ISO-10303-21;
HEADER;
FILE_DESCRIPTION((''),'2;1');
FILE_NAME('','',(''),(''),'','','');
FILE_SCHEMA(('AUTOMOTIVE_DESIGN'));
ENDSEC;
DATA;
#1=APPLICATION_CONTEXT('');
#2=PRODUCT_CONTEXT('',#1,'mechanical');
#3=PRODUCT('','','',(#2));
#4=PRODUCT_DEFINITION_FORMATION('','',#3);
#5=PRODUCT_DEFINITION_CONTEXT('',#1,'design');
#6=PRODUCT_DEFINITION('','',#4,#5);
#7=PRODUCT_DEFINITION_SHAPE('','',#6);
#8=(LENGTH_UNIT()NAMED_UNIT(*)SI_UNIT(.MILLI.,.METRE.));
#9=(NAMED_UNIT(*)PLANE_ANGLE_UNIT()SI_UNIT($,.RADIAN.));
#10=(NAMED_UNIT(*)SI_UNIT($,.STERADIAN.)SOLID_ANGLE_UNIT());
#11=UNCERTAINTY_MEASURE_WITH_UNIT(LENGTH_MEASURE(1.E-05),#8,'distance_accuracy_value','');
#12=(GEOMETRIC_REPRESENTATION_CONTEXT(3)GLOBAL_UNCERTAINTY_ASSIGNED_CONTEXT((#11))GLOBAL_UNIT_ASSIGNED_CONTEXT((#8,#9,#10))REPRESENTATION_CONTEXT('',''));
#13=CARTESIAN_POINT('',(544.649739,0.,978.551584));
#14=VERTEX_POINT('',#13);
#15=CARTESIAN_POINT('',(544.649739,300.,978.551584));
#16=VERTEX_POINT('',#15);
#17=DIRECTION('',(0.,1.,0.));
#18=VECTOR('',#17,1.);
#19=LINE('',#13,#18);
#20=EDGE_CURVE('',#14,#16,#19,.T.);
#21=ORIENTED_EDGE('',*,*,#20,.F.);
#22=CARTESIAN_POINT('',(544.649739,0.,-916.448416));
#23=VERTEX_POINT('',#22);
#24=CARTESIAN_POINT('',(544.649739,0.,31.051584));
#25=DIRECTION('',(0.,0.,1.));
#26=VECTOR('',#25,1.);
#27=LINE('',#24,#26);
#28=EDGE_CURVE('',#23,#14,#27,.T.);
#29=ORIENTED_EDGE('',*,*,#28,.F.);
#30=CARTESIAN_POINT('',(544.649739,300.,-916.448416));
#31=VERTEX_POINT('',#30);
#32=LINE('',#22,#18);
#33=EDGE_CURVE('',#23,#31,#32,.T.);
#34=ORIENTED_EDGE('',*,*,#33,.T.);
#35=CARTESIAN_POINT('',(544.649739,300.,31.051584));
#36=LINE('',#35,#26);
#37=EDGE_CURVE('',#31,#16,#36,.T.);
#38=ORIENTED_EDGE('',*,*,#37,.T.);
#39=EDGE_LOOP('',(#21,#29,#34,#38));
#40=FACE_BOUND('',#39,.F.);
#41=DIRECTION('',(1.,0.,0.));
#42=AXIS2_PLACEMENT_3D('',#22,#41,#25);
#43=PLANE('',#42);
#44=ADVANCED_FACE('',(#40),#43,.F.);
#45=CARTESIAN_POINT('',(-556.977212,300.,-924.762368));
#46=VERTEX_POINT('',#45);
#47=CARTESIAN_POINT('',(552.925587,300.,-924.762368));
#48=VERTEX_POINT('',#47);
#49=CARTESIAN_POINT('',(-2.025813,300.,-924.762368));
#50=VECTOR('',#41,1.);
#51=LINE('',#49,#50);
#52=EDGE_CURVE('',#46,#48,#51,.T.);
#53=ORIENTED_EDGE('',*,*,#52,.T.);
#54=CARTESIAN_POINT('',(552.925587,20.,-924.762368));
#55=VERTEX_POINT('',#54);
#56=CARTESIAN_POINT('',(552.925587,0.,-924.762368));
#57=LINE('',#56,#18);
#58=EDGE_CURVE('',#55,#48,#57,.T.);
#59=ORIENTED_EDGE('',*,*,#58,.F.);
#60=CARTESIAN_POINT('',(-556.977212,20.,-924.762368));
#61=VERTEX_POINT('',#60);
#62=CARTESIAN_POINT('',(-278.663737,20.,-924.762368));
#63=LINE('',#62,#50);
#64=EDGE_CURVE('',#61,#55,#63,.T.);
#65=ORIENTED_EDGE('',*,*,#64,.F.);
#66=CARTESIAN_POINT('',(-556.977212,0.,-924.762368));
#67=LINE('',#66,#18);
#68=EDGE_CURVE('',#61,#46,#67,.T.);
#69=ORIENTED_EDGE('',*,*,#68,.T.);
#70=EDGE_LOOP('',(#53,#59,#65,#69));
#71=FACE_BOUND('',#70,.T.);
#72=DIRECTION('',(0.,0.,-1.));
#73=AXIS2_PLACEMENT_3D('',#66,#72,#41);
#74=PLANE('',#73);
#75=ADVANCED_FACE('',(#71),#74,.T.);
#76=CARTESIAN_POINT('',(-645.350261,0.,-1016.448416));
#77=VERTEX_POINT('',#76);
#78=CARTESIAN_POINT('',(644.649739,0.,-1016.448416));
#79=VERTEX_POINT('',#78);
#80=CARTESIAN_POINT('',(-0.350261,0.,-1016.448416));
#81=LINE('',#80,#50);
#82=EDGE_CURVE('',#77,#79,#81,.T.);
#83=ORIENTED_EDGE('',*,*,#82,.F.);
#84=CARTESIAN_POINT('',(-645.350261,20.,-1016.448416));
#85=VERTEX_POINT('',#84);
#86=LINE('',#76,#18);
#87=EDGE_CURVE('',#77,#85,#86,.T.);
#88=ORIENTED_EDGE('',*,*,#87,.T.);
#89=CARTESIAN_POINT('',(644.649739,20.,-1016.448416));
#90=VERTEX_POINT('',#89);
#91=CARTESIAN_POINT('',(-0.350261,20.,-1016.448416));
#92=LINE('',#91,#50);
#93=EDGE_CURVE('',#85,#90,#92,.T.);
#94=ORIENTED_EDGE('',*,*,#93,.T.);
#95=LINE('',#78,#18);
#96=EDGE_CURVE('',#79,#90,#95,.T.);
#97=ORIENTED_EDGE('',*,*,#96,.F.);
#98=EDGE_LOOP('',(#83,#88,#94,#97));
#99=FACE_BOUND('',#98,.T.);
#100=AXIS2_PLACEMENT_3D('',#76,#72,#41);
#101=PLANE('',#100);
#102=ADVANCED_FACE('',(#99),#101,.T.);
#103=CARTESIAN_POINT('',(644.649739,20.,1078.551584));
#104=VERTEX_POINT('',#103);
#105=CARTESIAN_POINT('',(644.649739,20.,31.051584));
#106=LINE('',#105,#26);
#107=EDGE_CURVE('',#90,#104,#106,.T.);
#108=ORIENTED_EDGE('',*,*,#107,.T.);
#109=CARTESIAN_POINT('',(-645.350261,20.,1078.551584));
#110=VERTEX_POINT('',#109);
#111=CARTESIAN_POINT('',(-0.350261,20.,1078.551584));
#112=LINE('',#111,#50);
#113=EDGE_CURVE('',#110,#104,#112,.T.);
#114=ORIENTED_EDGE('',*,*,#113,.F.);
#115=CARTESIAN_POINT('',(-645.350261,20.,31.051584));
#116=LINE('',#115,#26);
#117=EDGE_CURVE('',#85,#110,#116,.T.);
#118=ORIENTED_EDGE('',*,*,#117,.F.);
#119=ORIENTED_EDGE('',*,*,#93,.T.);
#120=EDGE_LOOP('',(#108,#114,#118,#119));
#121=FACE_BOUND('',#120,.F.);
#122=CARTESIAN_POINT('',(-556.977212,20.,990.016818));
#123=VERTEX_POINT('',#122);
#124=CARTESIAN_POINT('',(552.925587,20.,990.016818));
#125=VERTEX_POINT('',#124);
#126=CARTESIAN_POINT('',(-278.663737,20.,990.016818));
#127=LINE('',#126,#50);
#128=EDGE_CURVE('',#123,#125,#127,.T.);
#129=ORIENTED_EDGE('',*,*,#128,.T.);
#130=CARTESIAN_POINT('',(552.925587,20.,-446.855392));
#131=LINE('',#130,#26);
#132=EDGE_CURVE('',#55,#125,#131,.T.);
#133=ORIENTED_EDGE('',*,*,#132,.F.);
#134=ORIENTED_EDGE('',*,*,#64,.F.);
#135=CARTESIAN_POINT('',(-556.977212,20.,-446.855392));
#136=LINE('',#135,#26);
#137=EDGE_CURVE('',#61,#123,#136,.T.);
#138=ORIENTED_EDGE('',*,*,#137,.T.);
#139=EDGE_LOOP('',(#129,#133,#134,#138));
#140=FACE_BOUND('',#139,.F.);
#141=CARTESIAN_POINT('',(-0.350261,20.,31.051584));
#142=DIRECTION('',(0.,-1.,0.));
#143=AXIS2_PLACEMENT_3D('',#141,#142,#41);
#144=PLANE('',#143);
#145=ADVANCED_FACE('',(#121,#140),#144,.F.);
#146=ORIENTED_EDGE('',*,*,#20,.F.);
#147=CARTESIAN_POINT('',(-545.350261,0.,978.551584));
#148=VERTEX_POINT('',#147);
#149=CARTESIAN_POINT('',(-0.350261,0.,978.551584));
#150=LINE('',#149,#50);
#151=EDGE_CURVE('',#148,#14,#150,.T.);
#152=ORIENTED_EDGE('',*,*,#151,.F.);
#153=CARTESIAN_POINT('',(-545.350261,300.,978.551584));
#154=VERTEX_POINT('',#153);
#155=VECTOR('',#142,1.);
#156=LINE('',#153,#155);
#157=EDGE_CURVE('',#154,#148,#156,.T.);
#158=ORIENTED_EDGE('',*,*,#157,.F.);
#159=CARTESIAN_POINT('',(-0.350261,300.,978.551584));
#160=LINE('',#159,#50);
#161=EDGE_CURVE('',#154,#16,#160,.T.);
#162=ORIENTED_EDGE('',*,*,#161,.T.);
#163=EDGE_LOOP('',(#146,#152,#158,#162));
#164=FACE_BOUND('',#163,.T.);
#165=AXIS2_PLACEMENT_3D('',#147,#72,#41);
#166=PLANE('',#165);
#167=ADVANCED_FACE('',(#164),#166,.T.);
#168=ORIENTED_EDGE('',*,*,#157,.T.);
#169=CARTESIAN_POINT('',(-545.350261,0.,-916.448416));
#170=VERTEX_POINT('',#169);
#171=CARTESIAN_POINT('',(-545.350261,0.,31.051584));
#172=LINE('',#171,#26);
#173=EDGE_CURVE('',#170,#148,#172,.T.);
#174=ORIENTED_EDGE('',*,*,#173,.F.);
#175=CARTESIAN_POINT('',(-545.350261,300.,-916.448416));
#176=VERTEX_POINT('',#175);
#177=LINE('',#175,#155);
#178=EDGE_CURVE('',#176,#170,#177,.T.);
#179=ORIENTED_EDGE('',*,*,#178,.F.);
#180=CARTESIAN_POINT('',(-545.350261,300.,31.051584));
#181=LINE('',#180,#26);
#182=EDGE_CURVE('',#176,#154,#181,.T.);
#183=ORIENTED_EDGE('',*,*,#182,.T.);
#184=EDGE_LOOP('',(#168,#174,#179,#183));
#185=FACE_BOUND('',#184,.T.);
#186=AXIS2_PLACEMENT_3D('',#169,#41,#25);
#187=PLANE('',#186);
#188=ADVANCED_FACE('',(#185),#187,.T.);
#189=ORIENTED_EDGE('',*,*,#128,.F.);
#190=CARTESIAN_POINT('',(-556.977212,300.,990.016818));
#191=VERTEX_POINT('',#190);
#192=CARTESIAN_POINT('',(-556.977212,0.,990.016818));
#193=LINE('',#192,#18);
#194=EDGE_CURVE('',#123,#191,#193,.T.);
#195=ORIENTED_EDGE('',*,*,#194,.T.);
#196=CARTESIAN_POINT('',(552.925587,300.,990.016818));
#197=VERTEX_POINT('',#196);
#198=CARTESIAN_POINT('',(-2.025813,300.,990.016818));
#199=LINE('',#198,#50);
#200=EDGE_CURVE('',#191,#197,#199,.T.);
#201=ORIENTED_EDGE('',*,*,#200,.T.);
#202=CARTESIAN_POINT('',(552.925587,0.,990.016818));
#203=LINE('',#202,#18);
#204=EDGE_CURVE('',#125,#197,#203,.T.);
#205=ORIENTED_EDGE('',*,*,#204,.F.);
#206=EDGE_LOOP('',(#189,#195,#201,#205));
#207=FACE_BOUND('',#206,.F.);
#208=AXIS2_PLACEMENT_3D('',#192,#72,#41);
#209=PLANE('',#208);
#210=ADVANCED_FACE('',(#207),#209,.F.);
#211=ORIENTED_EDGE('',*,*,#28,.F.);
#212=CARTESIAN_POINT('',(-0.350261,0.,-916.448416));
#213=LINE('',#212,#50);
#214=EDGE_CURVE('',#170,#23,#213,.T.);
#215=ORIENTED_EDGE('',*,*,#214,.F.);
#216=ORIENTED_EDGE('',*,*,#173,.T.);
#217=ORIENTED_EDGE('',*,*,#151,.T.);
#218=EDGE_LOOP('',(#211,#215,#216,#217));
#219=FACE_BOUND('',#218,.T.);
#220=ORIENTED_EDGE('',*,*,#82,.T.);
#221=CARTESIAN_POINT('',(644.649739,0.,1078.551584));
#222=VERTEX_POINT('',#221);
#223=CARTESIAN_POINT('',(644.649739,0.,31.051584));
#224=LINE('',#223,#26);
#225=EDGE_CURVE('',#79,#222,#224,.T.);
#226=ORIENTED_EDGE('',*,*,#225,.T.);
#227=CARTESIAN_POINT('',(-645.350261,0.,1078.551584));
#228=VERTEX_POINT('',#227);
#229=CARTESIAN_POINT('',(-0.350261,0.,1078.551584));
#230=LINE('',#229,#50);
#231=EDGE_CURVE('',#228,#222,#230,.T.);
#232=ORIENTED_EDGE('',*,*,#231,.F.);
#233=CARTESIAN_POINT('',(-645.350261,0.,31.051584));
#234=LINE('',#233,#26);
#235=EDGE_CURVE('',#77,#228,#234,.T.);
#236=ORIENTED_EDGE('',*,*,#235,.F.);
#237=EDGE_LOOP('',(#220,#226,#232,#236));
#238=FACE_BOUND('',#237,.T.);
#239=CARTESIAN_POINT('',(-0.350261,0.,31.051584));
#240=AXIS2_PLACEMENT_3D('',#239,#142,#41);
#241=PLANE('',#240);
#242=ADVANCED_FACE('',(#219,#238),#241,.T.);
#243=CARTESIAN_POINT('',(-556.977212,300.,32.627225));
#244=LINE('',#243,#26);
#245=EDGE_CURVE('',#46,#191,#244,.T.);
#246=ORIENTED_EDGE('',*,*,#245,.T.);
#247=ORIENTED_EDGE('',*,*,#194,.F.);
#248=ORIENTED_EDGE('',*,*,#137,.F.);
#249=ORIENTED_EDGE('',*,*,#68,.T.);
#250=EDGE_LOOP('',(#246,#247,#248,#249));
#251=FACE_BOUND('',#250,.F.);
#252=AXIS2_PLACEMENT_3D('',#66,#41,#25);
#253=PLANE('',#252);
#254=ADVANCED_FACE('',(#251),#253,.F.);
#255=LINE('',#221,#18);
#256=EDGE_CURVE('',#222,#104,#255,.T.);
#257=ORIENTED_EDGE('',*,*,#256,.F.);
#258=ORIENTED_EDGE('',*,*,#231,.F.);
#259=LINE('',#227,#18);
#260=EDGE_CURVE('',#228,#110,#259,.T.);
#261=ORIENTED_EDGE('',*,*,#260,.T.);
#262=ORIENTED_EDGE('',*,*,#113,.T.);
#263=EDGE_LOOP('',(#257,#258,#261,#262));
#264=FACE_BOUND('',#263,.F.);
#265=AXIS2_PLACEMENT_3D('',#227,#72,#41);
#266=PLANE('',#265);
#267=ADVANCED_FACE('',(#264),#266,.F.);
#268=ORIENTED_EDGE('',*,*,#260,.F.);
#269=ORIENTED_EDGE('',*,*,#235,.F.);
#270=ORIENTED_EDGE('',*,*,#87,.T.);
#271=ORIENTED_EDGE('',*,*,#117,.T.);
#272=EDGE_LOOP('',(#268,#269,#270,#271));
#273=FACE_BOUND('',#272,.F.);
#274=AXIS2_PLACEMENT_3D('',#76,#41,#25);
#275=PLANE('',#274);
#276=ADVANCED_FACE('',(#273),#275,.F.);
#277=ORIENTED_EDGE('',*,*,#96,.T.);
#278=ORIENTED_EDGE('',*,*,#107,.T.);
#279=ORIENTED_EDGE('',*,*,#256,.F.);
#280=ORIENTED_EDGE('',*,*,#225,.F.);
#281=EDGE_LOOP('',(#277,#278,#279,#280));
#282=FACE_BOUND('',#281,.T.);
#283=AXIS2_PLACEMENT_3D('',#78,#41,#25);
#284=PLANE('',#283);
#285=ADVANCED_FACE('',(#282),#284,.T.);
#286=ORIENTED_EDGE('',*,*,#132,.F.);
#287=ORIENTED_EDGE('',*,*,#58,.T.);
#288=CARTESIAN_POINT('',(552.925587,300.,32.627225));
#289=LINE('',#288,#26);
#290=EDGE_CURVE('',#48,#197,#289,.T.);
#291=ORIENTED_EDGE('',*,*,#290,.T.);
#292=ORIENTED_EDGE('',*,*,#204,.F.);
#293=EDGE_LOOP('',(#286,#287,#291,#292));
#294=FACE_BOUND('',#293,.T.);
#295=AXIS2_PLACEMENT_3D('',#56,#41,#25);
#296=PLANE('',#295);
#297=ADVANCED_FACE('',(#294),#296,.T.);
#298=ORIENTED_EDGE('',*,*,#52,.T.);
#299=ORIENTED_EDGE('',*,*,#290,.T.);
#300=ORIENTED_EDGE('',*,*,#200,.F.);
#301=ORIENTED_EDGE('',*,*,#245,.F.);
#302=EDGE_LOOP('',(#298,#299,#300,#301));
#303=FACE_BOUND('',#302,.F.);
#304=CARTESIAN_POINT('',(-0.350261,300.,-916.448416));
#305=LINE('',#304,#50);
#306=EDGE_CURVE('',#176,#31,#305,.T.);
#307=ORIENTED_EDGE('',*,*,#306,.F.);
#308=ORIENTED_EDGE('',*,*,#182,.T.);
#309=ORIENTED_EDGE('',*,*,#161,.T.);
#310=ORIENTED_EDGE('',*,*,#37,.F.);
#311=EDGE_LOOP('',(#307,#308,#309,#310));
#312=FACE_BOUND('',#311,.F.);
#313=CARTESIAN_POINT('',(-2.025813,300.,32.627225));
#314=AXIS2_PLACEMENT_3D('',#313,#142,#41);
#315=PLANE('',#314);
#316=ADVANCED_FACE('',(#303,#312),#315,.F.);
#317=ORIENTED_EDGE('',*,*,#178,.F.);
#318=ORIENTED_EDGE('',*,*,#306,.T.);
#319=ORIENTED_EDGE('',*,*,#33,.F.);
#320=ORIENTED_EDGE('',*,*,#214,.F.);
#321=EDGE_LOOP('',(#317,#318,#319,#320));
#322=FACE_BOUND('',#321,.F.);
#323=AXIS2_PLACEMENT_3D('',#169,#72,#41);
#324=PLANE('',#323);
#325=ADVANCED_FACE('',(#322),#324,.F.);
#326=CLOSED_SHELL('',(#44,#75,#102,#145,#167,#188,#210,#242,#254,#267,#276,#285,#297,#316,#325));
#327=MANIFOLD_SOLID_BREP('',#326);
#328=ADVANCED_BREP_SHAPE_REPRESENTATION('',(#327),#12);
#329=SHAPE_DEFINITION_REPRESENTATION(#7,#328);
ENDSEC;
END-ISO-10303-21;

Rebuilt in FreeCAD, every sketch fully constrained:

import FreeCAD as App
import Part
import Sketcher

V = App.Vector

doc = App.newDocument("Part")
body = doc.addObject("PartDesign::Body", "Body")

# Sketch on XZ plane
sketch1 = body.newObject("Sketcher::SketchObject", "Sketch")
sketch1.AttachmentSupport = (doc.getObject("XZ_Plane"), [""])
sketch1.MapMode = "FlatFace"
sketch1.addGeometry([
    Part.LineSegment(V(-645, 1079, 0), V(-645, -1016, 0)),  # 0
    Part.LineSegment(V(-645, -1016, 0), V(645, -1016, 0)),  # 1
    Part.LineSegment(V(645, -1016, 0), V(645, 1079, 0)),  # 2
    Part.LineSegment(V(645, 1079, 0), V(-645, 1079, 0)),  # 3
    Part.LineSegment(V(545, -916, 0), V(-545, -916, 0)),  # 4
    Part.LineSegment(V(-545, -916, 0), V(-545, 979, 0)),  # 5
    Part.LineSegment(V(-545, 979, 0), V(545, 979, 0)),  # 6
    Part.LineSegment(V(545, 979, 0), V(545, -916, 0)),  # 7
], False)
sketch1.addConstraint([
    Sketcher.Constraint("Coincident", 0, 2, 1, 1),
    Sketcher.Constraint("Coincident", 1, 2, 2, 1),
    Sketcher.Constraint("Coincident", 2, 2, 3, 1),
    Sketcher.Constraint("Coincident", 3, 2, 0, 1),
    Sketcher.Constraint("Coincident", 4, 2, 5, 1),
    Sketcher.Constraint("Coincident", 5, 2, 6, 1),
    Sketcher.Constraint("Coincident", 6, 2, 7, 1),
    Sketcher.Constraint("Coincident", 7, 2, 4, 1),
    Sketcher.Constraint("Vertical", 0),
    Sketcher.Constraint("Horizontal", 1),
    Sketcher.Constraint("Vertical", 2),
    Sketcher.Constraint("Horizontal", 3),
    Sketcher.Constraint("Horizontal", 4),
    Sketcher.Constraint("Vertical", 5),
    Sketcher.Constraint("Horizontal", 6),
    Sketcher.Constraint("Vertical", 7),
    Sketcher.Constraint("DistanceX", 1, 1, 1, 2, 1290.0),
    Sketcher.Constraint("DistanceX", 4, 2, 4, 1, 1090.0),
    Sketcher.Constraint("DistanceY", 0, 2, 0, 1, 2095.0),
    Sketcher.Constraint("DistanceY", 5, 1, 5, 2, 1895.0),
    Sketcher.Constraint("DistanceX", 0, 2, 4, 2, 100.0),
    Sketcher.Constraint("DistanceY", 0, 2, 4, 2, 100.0),
    Sketcher.Constraint("DistanceX", 0, 2, -1, 1, 645.350261),
    Sketcher.Constraint("DistanceY", 0, 2, -1, 1, 1016.448416),
])
pad1 = body.newObject("PartDesign::Pad", "Pad")
pad1.Profile = sketch1
pad1.Length = 20
pad1.Reversed = True

# Sketch on XZ plane
sketch2 = body.newObject("Sketcher::SketchObject", "Sketch001")
sketch2.AttachmentSupport = (doc.getObject("XZ_Plane"), [""])
sketch2.MapMode = "FlatFace"
sketch2.addGeometry([
    Part.LineSegment(V(-557, 990, 0), V(-557, -925, 0)),  # 0
    Part.LineSegment(V(-557, -925, 0), V(553, -925, 0)),  # 1
    Part.LineSegment(V(553, -925, 0), V(553, 990, 0)),  # 2
    Part.LineSegment(V(553, 990, 0), V(-557, 990, 0)),  # 3
    Part.LineSegment(V(545, -916, 0), V(-545, -916, 0)),  # 4
    Part.LineSegment(V(-545, -916, 0), V(-545, 979, 0)),  # 5
    Part.LineSegment(V(-545, 979, 0), V(545, 979, 0)),  # 6
    Part.LineSegment(V(545, 979, 0), V(545, -916, 0)),  # 7
], False)
sketch2.addConstraint([
    Sketcher.Constraint("Coincident", 0, 2, 1, 1),
    Sketcher.Constraint("Coincident", 1, 2, 2, 1),
    Sketcher.Constraint("Coincident", 2, 2, 3, 1),
    Sketcher.Constraint("Coincident", 3, 2, 0, 1),
    Sketcher.Constraint("Coincident", 4, 2, 5, 1),
    Sketcher.Constraint("Coincident", 5, 2, 6, 1),
    Sketcher.Constraint("Coincident", 6, 2, 7, 1),
    Sketcher.Constraint("Coincident", 7, 2, 4, 1),
    Sketcher.Constraint("Vertical", 0),
    Sketcher.Constraint("Horizontal", 1),
    Sketcher.Constraint("Vertical", 2),
    Sketcher.Constraint("Horizontal", 3),
    Sketcher.Constraint("Horizontal", 4),
    Sketcher.Constraint("Vertical", 5),
    Sketcher.Constraint("Horizontal", 6),
    Sketcher.Constraint("Vertical", 7),
    Sketcher.Constraint("DistanceX", 4, 2, 4, 1, 1090.0),
    Sketcher.Constraint("DistanceY", 5, 1, 5, 2, 1895.0),
    Sketcher.Constraint("DistanceX", 1, 1, 1, 2, 1109.902799),
    Sketcher.Constraint("DistanceY", 0, 2, 0, 1, 1914.779186),
    Sketcher.Constraint("DistanceY", 0, 2, -1, 1, 924.762368),
    Sketcher.Constraint("DistanceX", 4, 2, -1, 1, 545.350261),
    Sketcher.Constraint("DistanceX", 0, 2, 4, 2, 11.626951),
    Sketcher.Constraint("DistanceY", 0, 2, 5, 2, 1903.313952),
])
pad2 = body.newObject("PartDesign::Pad", "Pad001")
pad2.Profile = sketch2
pad2.Length = 300
pad2.Reversed = True

doc.recompute()
